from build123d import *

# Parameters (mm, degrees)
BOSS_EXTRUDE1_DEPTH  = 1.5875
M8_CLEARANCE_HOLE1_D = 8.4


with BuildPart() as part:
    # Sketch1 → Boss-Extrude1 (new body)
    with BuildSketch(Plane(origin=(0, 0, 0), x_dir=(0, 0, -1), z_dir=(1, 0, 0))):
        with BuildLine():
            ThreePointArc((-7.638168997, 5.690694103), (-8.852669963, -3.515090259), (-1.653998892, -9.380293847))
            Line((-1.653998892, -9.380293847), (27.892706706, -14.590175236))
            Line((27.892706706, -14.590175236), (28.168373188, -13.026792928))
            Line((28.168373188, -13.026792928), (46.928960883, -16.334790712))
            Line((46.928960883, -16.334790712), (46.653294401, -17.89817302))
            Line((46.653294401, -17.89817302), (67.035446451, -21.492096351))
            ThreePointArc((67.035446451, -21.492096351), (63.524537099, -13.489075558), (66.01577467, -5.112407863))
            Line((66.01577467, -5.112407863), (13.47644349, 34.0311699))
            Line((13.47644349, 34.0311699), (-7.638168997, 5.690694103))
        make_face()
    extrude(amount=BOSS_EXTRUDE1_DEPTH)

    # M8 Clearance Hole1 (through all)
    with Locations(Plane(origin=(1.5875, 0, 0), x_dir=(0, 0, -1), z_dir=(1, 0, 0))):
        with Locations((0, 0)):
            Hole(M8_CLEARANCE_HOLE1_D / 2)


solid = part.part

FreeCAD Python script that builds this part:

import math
import FreeCAD as App
import Part
import Sketcher
from FreeCAD import Vector
Q = App.Units.Quantity

doc = App.newDocument("Part")
params = doc.addObject("Spreadsheet::Sheet", "Params")
for row, (alias, value) in enumerate([
    ("sketch1_radius", "0.5 in"),
    ("sketch1_radius2", "0.375 in"),
    ("sketch1_length", "0.75 in"),
    ("sketch1_length2", "0.0625 in"),
    ("pad1_length", "0.0625 in"),
    ("hole_diameter", "8.4 mm"),
], start=1):
    params.set(f"A{row}", alias)
    params.set(f"B{row}", "=" + value)
    params.setAlias(f"B{row}", alias)

body = doc.addObject("PartDesign::Body", "Body")

sketch1 = body.newObject("Sketcher::SketchObject", "Sketch")
sketch1.AttachmentSupport = (doc.getObject("YZ_Plane"), [""])
sketch1.MapMode = "FlatFace"
sketch1.addGeometry(Part.ArcOfCircle(Part.Circle(Vector(0, 0, 0), Vector(0, 0, 1), 9.5), math.radians(53), math.radians(170)), False)
sketch1.addGeometry(Part.LineSegment(Vector(-9.4, 1.7, 0), Vector(-14.6, -27.9, 0)), False)
sketch1.addGeometry(Part.LineSegment(Vector(-14.6, -27.9, 0), Vector(-13, -28.2, 0)), False)
sketch1.addGeometry(Part.LineSegment(Vector(-13, -28.2, 0), Vector(-16.3, -46.9, 0)), False)
sketch1.addGeometry(Part.LineSegment(Vector(-16.3, -46.9, 0), Vector(-17.9, -46.7, 0)), False)
sketch1.addGeometry(Part.LineSegment(Vector(-17.9, -46.7, 0), Vector(-21.5, -67, 0)), False)
sketch1.addGeometry(Part.ArcOfCircle(Part.Circle(Vector(-12.7, -76.2, 0), Vector(0, 0, 1), 12.7), math.radians(53), math.radians(134)), False)
sketch1.addGeometry(Part.LineSegment(Vector(-5.1, -66, 0), Vector(34, -13.5, 0)), False)
sketch1.addGeometry(Part.LineSegment(Vector(34, -13.5, 0), Vector(5.7, 7.6, 0)), False)
sketch1.addConstraint(Sketcher.Constraint("Tangent", 0, 2, 1, 1))
sketch1.addConstraint(Sketcher.Constraint("Coincident", 1, 2, 2, 1))
sketch1.addConstraint(Sketcher.Constraint("Coincident", 2, 2, 3, 1))
sketch1.addConstraint(Sketcher.Constraint("Coincident", 3, 2, 4, 1))
sketch1.addConstraint(Sketcher.Constraint("Coincident", 4, 2, 5, 1))
sketch1.addConstraint(Sketcher.Constraint("Coincident", 5, 2, 6, 2))
sketch1.addConstraint(Sketcher.Constraint("Coincident", 6, 1, 7, 1))
sketch1.addConstraint(Sketcher.Constraint("Coincident", 7, 2, 8, 1))
sketch1.addConstraint(Sketcher.Constraint("Tangent", 8, 2, 0, 1))
sketch1.addConstraint(Sketcher.Constraint("Coincident", 0, 3, -1, 1))
sketch1.addConstraint(Sketcher.Constraint("Perpendicular", 1, 2))
sketch1.addConstraint(Sketcher.Constraint("Perpendicular", 2, 3))
sketch1.addConstraint(Sketcher.Constraint("Perpendicular", 3, 4))
sketch1.addConstraint(Sketcher.Constraint("Perpendicular", 4, 5))
sketch1.addConstraint(Sketcher.Constraint("Perpendicular", 7, 8))
sketch1.addConstraint(Sketcher.Constraint("Equal", 2, 4))
sketch1.addConstraint(Sketcher.Constraint("Radius", 6, Q("0.5 in")))
sketch1.addConstraint(Sketcher.Constraint("DistanceY", 6, 3, -1, 1, Q("3 in")))
sketch1.addConstraint(Sketcher.Constraint("Angle", 1, Q("-100 deg")))
sketch1.addConstraint(Sketcher.Constraint("Radius", 0, Q("0.375 in")))
sketch1.addConstraint(Sketcher.Constraint("DistanceX", 6, 3, -1, 1, Q("0.5 in")))
sketch1.addConstraint(Sketcher.Constraint("Distance", 3, Q("0.75 in")))
sketch1.addConstraint(Sketcher.Constraint("Distance", 2, Q("0.0625 in")))
sketch1.addConstraint(Sketcher.Constraint("DistanceX", 2, 2, 0, 2, 3.646499))
sketch1.addConstraint(Sketcher.Constraint("DistanceY", 6, 1, 2, 2, 37.847401))
sketch1.addConstraint(Sketcher.Constraint("DistanceX", -1, 1, 7, 2, 34.03117))
sketch1.setExpression("Constraints[16]", "Params.sketch1_radius")
sketch1.setExpression("Constraints[19]", "Params.sketch1_radius2")
sketch1.setExpression("Constraints[21]", "Params.sketch1_length")
sketch1.setExpression("Constraints[22]", "Params.sketch1_length2")
pad1 = body.newObject("PartDesign::Pad", "Pad")
pad1.Profile = sketch1
pad1.setExpression("Length", "Params.pad1_length")

sketch2 = body.newObject("Sketcher::SketchObject", "Sketch001")
sketch2.AttachmentSupport = (doc.getObject("YZ_Plane"), [""])
sketch2.MapMode = "FlatFace"
sketch2.AttachmentOffset = App.Placement(Vector(0, 0, 0.0625 * 25.4), App.Rotation())
sketch2.addGeometry(Part.Circle(Vector(0, 0, 0), Vector(0, 0, 1), 4.2), False)
sketch2.addConstraint(Sketcher.Constraint("Coincident", 0, 3, -1, 1))
sketch2.addConstraint(Sketcher.Constraint("Diameter", 0, 8.4))
doc.recompute()
hole = body.newObject("PartDesign::Hole", "Hole")
hole.Profile = sketch2
hole.ThreadType = "None"
hole.setExpression("Diameter", "Params.hole_diameter")
hole.DepthType = "ThroughAll"

doc.recompute()
